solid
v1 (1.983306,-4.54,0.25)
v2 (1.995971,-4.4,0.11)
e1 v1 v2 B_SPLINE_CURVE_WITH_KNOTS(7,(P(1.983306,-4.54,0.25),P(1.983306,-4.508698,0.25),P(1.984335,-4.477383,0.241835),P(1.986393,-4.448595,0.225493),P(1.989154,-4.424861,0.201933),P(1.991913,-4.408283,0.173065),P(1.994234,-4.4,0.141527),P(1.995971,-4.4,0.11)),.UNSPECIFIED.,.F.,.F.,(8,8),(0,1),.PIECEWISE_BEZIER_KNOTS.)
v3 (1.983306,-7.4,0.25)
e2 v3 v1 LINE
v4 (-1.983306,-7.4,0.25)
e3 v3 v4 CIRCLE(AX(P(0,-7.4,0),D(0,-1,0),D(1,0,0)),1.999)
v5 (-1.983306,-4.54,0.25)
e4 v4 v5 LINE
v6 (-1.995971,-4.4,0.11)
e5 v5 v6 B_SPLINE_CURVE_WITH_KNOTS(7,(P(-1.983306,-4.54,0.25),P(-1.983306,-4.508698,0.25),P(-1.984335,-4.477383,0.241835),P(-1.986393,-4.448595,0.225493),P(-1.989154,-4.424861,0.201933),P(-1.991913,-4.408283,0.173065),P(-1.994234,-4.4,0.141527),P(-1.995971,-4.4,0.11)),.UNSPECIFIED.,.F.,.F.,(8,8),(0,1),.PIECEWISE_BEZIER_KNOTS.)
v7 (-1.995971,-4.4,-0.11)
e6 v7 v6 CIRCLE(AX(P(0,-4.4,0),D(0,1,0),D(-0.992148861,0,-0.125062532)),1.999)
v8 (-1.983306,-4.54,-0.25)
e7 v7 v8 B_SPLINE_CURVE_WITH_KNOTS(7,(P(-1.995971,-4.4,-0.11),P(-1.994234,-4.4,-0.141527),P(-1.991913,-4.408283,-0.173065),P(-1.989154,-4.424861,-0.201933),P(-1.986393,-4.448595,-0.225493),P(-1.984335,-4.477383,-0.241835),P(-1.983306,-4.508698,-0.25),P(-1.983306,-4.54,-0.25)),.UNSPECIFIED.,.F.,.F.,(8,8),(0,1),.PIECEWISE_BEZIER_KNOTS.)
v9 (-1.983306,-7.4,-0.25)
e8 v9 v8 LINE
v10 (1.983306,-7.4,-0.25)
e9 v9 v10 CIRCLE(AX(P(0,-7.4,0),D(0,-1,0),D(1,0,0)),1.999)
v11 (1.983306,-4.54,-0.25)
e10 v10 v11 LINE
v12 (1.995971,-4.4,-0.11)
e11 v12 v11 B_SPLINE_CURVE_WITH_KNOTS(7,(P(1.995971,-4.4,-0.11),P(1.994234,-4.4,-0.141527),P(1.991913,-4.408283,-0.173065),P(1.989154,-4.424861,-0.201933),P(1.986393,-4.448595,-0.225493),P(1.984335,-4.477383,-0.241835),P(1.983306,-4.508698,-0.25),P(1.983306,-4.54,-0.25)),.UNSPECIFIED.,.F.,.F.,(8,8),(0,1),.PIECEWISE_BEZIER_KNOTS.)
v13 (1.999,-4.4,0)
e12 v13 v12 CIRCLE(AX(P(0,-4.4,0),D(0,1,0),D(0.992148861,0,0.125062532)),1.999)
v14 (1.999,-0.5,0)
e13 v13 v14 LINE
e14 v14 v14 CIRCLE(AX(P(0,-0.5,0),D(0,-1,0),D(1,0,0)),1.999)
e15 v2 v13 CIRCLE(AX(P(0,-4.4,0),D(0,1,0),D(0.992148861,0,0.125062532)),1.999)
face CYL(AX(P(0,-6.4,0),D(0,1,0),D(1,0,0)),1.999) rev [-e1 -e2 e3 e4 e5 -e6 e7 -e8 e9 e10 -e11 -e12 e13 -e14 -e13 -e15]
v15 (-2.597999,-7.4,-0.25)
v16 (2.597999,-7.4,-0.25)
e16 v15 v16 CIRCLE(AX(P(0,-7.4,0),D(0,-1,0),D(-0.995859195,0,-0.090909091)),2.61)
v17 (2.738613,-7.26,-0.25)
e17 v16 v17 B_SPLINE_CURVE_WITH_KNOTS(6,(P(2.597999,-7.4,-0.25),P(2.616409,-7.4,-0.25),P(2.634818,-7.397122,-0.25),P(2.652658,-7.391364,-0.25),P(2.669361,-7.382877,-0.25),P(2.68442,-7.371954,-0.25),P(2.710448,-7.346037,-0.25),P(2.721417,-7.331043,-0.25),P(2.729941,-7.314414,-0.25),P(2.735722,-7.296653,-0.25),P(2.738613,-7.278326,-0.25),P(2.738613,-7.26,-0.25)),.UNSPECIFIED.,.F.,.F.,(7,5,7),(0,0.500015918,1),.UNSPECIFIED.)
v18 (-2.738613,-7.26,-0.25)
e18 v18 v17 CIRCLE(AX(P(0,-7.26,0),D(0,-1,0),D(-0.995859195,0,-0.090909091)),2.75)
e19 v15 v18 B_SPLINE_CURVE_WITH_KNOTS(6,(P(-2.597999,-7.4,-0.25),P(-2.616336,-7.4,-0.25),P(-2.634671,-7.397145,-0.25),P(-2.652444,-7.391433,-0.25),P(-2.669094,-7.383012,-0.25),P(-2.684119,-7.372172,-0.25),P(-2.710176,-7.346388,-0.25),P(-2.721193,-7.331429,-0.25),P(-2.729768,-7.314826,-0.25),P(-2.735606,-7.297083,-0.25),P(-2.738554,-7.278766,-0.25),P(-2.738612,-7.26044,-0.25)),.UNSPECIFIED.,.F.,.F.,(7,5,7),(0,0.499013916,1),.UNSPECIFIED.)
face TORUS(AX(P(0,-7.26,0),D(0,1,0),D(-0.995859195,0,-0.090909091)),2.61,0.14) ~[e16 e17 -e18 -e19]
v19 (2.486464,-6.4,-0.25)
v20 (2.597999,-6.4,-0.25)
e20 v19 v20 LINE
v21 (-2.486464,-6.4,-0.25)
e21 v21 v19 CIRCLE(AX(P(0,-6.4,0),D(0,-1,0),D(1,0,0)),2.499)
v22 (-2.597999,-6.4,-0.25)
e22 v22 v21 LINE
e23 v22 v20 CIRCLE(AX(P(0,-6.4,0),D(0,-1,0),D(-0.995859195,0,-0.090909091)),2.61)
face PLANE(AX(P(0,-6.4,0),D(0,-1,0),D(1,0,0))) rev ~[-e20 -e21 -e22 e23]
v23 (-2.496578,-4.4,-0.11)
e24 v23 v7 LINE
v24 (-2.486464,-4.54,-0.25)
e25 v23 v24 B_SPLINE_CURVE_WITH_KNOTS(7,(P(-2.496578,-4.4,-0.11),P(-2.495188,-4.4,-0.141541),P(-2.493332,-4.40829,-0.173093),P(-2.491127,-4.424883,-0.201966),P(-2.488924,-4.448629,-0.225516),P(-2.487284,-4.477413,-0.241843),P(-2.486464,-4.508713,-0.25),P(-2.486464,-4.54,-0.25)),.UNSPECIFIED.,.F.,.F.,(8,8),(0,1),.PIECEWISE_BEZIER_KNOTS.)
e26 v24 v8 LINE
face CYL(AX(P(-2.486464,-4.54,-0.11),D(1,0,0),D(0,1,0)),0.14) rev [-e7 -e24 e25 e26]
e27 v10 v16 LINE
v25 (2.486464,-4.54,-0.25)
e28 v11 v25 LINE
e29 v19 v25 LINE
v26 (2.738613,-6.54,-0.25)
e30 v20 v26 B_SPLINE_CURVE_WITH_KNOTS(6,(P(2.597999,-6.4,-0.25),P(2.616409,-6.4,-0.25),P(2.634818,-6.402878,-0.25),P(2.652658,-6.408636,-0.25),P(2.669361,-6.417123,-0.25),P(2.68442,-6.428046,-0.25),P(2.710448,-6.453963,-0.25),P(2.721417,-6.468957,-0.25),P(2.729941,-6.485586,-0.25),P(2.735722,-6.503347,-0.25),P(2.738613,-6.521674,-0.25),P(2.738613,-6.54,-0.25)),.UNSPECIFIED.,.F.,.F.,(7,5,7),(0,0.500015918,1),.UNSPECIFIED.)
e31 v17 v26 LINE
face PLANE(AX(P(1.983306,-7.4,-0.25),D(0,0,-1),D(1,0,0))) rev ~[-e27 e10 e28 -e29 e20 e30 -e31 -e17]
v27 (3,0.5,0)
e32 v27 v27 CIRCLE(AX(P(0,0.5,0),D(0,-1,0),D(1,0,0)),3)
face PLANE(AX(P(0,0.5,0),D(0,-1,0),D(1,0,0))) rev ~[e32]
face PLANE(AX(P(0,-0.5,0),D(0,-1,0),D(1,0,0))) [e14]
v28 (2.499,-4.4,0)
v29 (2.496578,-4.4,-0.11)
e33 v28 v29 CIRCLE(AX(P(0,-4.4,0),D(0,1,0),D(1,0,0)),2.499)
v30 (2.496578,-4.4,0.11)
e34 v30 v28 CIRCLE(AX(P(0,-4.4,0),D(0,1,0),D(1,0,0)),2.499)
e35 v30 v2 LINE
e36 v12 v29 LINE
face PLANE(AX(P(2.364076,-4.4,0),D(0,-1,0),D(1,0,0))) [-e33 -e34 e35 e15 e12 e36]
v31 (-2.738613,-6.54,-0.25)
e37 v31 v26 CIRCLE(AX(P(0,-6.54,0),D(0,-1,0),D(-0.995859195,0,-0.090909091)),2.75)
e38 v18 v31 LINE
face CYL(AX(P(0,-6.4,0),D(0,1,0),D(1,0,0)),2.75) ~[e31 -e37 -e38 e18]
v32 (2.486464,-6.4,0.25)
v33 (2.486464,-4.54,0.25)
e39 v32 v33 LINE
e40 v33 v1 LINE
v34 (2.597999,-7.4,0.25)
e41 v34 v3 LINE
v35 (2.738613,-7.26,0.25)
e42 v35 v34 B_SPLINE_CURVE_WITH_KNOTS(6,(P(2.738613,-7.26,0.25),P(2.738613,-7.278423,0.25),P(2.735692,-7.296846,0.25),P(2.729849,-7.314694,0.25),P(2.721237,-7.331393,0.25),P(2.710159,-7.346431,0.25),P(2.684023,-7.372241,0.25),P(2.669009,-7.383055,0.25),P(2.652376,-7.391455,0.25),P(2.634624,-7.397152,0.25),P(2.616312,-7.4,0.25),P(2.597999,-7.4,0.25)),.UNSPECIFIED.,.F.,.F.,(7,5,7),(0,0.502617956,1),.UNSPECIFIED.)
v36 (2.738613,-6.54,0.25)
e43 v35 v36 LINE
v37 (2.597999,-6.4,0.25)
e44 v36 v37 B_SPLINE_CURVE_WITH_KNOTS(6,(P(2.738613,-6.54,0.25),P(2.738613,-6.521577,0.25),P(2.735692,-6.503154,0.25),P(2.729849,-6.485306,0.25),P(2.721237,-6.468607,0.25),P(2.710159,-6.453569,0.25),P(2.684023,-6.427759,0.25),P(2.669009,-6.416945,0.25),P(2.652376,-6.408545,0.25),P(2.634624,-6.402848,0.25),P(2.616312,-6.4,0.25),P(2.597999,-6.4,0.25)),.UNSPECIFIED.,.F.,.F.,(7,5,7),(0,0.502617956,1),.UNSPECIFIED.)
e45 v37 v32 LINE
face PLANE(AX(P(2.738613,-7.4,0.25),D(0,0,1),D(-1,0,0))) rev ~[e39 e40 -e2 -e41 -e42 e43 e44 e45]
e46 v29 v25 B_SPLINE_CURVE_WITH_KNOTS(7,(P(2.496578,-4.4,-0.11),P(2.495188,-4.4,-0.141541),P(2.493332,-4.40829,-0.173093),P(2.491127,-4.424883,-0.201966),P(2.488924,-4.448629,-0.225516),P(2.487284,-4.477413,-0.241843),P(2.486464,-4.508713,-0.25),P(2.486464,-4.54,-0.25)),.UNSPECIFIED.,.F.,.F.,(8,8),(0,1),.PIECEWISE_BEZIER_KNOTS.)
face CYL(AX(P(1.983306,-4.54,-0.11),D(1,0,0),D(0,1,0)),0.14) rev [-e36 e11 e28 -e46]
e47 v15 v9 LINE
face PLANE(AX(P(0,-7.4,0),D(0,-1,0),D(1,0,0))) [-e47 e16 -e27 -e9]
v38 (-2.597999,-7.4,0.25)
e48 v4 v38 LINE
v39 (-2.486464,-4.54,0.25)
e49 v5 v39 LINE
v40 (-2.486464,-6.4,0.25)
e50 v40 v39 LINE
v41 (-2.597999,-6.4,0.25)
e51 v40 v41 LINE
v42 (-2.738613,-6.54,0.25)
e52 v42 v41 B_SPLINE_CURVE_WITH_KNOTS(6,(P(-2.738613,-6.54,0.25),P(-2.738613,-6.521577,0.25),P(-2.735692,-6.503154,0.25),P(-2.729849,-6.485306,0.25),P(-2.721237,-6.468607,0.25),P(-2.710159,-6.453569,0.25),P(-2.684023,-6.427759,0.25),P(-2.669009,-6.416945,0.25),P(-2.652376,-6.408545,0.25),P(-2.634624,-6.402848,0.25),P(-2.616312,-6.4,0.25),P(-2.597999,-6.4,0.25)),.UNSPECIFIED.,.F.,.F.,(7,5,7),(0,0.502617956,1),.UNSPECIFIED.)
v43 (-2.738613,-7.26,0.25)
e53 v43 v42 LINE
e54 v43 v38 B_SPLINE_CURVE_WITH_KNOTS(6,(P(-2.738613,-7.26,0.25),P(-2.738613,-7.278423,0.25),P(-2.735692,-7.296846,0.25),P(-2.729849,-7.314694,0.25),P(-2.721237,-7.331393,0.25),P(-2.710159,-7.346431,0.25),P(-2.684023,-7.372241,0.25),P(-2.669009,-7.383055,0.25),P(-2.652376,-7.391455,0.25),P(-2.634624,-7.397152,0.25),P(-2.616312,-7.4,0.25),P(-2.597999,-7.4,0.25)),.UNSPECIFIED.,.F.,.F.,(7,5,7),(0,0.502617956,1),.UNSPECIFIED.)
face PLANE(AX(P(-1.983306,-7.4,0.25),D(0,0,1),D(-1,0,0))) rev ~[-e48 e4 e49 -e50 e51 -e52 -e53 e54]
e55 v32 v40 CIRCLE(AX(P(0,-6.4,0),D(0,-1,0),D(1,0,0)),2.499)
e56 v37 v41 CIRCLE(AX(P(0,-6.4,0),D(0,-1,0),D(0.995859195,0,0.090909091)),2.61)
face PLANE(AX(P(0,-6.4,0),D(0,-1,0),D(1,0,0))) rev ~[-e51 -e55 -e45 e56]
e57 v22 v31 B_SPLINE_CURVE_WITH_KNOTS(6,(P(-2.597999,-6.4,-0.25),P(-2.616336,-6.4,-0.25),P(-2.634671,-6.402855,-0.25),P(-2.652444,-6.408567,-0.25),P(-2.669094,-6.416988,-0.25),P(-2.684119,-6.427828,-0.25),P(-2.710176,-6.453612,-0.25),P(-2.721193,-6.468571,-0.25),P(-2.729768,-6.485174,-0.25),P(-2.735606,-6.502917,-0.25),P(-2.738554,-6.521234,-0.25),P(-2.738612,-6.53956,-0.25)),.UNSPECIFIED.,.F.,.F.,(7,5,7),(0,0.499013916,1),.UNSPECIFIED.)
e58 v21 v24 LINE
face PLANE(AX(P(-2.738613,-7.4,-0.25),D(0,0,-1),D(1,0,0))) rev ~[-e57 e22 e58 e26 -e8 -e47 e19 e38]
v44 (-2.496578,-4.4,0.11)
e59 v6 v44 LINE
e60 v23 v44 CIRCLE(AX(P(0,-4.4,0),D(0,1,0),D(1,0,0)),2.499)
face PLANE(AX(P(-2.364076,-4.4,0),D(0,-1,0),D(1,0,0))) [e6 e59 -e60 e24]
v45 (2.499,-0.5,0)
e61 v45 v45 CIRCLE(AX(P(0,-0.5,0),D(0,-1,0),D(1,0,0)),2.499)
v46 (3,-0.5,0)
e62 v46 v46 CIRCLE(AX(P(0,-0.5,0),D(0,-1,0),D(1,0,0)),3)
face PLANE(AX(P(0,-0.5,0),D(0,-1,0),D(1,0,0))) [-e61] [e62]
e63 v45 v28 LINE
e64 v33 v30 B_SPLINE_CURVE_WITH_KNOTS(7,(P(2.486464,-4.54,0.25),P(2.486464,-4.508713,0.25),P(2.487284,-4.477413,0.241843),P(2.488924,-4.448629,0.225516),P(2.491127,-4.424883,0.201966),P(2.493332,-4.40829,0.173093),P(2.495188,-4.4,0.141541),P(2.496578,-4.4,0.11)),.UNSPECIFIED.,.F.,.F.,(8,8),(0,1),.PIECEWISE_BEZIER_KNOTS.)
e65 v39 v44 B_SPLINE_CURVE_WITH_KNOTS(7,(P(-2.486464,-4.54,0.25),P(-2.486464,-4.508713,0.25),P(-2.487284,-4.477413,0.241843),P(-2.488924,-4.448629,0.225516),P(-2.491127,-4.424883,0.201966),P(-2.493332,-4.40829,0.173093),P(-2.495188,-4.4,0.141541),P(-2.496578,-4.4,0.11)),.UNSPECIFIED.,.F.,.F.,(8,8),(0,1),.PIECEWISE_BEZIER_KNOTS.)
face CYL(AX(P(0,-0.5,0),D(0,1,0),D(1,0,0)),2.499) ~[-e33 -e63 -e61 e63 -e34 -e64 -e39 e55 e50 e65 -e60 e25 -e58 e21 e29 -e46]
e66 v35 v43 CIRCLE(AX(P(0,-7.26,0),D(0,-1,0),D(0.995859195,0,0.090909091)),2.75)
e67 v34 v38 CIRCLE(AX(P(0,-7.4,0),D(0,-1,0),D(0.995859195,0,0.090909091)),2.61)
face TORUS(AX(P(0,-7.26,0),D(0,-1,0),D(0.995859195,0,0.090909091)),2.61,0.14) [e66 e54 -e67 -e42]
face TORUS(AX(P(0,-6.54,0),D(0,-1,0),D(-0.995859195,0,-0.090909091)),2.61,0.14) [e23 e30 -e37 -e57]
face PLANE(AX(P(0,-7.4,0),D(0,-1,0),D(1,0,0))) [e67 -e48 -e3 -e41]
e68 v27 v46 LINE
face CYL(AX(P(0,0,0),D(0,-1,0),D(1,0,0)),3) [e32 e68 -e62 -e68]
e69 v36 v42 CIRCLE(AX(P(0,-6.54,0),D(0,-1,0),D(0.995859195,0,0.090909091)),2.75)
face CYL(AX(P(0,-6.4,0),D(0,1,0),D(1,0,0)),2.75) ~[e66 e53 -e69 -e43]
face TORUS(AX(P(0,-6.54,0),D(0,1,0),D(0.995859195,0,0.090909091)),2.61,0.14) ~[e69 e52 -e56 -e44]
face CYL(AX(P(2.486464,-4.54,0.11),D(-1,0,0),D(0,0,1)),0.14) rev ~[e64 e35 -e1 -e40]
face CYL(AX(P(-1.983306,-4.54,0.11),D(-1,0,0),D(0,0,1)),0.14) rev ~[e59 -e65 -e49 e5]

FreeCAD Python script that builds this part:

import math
import FreeCAD as App
import Part
import Sketcher

V = App.Vector


def edges_at(feature, points):
    """Names of the edges that pass closest to the given points."""
    edges = feature.Shape.Edges
    near = lambda p: min(range(len(edges)), key=lambda i: edges[i].distToShape(Part.Vertex(*p))[0])
    return sorted({f"Edge{near(p) + 1}" for p in points})

doc = App.newDocument("Part")
body = doc.addObject("PartDesign::Body", "Body")

sketch1 = body.newObject("Sketcher::SketchObject", "Sketch")
sketch1.AttachmentSupport = (doc.getObject("XZ_Plane"), [""])
sketch1.MapMode = "FlatFace"
sketch1.addGeometry(Part.Circle(V(0, 0, 0), V(0, 0, 1), 3), False)
sketch1.addConstraint([
    Sketcher.Constraint("Coincident", 0, 3, -1, 1),
    Sketcher.Constraint("Diameter", 0, 6.0),
])
pad1 = body.newObject("PartDesign::Pad", "Pad")
pad1.Profile = sketch1
pad1.Length = 1
pad1.Midplane = True

sketch2 = body.newObject("Sketcher::SketchObject", "Sketch001")
sketch2.AttachmentSupport = (doc.getObject("XZ_Plane"), [""])
sketch2.MapMode = "FlatFace"
sketch2.AttachmentOffset = App.Placement(V(0, 0, 0.5), App.Rotation())
sketch2.addGeometry([
    Part.Circle(V(0, 0, 0), V(0, 0, 1), 2.5),
    Part.Circle(V(0, 0, 0), V(0, 0, 1), 2),
], False)
sketch2.addConstraint([
    Sketcher.Constraint("Coincident", 0, 3, -1, 1),
    Sketcher.Constraint("Coincident", 1, 3, -1, 1),
    Sketcher.Constraint("Diameter", 0, 4.998),
    Sketcher.Constraint("Diameter", 1, 3.998),
])
pad2 = body.newObject("PartDesign::Pad", "Pad001")
pad2.Profile = sketch2
pad2.Length = 5.9

sketch3 = body.newObject("Sketcher::SketchObject", "Sketch002")
sketch3.AttachmentSupport = (doc.getObject("XZ_Plane"), [""])
sketch3.MapMode = "FlatFace"
sketch3.AttachmentOffset = App.Placement(V(0, 0, 6.4), App.Rotation())
sketch3.addGeometry([
    Part.Circle(V(0, 0, 0), V(0, 0, 1), 2.8),
    Part.Circle(V(0, 0, 0), V(0, 0, 1), 2),
], False)
sketch3.addConstraint([
    Sketcher.Constraint("Coincident", 0, 3, -1, 1),
    Sketcher.Constraint("Coincident", 1, 3, -1, 1),
    Sketcher.Constraint("Diameter", 0, 5.5),
    Sketcher.Constraint("Diameter", 1, 3.998),
])
pad3 = body.newObject("PartDesign::Pad", "Pad002")
pad3.Profile = sketch3
pad3.Length = 1

sketch4 = body.newObject("Sketcher::SketchObject", "Sketch003")
sketch4.AttachmentSupport = (doc.getObject("XZ_Plane"), [""])
sketch4.MapMode = "FlatFace"
sketch4.AttachmentOffset = App.Placement(V(0, 0, 7.4), App.Rotation())
sketch4.addGeometry([
    Part.ArcOfCircle(Part.Circle(V(0, 0, 0), V(0, 0, 1), 2.7), math.radians(-5.22), math.radians(5.22)),
    Part.LineSegment(V(2.7, 0.2, 0), V(2, 0.2, 0)),
    Part.ArcOfCircle(Part.Circle(V(0, 0, 0), V(0, 0, 1), 2), math.radians(-7.18), math.radians(7.18)),
    Part.LineSegment(V(2, -0.2, 0), V(2.7, -0.2, 0)),
    Part.LineSegment(V(-2.7, -0.2, 0), V(-2, -0.2, 0)),
    Part.ArcOfCircle(Part.Circle(V(0, 0, 0), V(0, 0, 1), 2), math.radians(172.82), math.radians(187.18)),
    Part.LineSegment(V(-2, 0.2, 0), V(-2.7, 0.2, 0)),
    Part.ArcOfCircle(Part.Circle(V(0, 0, 0), V(0, 0, 1), 2.7), math.radians(174.78), math.radians(185.22)),
], False)
sketch4.addConstraint([
    Sketcher.Constraint("Coincident", 0, 2, 1, 1),
    Sketcher.Constraint("Coincident", 1, 2, 2, 2),
    Sketcher.Constraint("Coincident", 2, 1, 3, 1),
    Sketcher.Constraint("Coincident", 3, 2, 0, 1),
    Sketcher.Constraint("Coincident", 4, 2, 5, 2),
    Sketcher.Constraint("Coincident", 5, 1, 6, 1),
    Sketcher.Constraint("Coincident", 6, 2, 7, 1),
    Sketcher.Constraint("Coincident", 7, 2, 4, 1),
    Sketcher.Constraint("Horizontal", 1),
    Sketcher.Constraint("Horizontal", 3),
    Sketcher.Constraint("Horizontal", 4),
    Sketcher.Constraint("Horizontal", 6),
    Sketcher.Constraint("Coincident", 0, 3, -1, 1),
    Sketcher.Constraint("Coincident", 2, 3, -1, 1),
    Sketcher.Constraint("Coincident", 5, 3, -1, 1),
    Sketcher.Constraint("Coincident", 7, 3, -1, 1),
    Sketcher.Constraint("Equal", 2, 5),
    Sketcher.Constraint("Equal", 0, 7),
    Sketcher.Constraint("Horizontal", 3, 2, 4, 2),
    Sketcher.Constraint("Horizontal", 1, 2, 5, 1),
    Sketcher.Constraint("Vertical", 1, 2, 2, 1),
    Sketcher.Constraint("Radius", 0, 2.75),
    Sketcher.Constraint("Radius", 2, 1.999),
    Sketcher.Constraint("DistanceY", 2, 1, 1, 2, 0.5),
])
pocket1 = body.newObject("PartDesign::Pocket", "Pocket")
pocket1.Profile = sketch4
pocket1.Length = 3
doc.recompute()

fillet = body.newObject("PartDesign::Fillet", "Fillet")
fillet.Base = (pocket1, edges_at(pocket1, [
    (-2.235, -4.4, -0.25),
    (0, -6.4, 2.75),
    (0, -7.4, 2.75),
    (0, -7.4, -2.75),
    (0, -6.4, -2.75),
    (2.235, -4.4, -0.25),
    (2.235, -4.4, 0.25),
    (-2.235, -4.4, 0.25),
]))
fillet.Radius = 0.14

doc.recompute()
